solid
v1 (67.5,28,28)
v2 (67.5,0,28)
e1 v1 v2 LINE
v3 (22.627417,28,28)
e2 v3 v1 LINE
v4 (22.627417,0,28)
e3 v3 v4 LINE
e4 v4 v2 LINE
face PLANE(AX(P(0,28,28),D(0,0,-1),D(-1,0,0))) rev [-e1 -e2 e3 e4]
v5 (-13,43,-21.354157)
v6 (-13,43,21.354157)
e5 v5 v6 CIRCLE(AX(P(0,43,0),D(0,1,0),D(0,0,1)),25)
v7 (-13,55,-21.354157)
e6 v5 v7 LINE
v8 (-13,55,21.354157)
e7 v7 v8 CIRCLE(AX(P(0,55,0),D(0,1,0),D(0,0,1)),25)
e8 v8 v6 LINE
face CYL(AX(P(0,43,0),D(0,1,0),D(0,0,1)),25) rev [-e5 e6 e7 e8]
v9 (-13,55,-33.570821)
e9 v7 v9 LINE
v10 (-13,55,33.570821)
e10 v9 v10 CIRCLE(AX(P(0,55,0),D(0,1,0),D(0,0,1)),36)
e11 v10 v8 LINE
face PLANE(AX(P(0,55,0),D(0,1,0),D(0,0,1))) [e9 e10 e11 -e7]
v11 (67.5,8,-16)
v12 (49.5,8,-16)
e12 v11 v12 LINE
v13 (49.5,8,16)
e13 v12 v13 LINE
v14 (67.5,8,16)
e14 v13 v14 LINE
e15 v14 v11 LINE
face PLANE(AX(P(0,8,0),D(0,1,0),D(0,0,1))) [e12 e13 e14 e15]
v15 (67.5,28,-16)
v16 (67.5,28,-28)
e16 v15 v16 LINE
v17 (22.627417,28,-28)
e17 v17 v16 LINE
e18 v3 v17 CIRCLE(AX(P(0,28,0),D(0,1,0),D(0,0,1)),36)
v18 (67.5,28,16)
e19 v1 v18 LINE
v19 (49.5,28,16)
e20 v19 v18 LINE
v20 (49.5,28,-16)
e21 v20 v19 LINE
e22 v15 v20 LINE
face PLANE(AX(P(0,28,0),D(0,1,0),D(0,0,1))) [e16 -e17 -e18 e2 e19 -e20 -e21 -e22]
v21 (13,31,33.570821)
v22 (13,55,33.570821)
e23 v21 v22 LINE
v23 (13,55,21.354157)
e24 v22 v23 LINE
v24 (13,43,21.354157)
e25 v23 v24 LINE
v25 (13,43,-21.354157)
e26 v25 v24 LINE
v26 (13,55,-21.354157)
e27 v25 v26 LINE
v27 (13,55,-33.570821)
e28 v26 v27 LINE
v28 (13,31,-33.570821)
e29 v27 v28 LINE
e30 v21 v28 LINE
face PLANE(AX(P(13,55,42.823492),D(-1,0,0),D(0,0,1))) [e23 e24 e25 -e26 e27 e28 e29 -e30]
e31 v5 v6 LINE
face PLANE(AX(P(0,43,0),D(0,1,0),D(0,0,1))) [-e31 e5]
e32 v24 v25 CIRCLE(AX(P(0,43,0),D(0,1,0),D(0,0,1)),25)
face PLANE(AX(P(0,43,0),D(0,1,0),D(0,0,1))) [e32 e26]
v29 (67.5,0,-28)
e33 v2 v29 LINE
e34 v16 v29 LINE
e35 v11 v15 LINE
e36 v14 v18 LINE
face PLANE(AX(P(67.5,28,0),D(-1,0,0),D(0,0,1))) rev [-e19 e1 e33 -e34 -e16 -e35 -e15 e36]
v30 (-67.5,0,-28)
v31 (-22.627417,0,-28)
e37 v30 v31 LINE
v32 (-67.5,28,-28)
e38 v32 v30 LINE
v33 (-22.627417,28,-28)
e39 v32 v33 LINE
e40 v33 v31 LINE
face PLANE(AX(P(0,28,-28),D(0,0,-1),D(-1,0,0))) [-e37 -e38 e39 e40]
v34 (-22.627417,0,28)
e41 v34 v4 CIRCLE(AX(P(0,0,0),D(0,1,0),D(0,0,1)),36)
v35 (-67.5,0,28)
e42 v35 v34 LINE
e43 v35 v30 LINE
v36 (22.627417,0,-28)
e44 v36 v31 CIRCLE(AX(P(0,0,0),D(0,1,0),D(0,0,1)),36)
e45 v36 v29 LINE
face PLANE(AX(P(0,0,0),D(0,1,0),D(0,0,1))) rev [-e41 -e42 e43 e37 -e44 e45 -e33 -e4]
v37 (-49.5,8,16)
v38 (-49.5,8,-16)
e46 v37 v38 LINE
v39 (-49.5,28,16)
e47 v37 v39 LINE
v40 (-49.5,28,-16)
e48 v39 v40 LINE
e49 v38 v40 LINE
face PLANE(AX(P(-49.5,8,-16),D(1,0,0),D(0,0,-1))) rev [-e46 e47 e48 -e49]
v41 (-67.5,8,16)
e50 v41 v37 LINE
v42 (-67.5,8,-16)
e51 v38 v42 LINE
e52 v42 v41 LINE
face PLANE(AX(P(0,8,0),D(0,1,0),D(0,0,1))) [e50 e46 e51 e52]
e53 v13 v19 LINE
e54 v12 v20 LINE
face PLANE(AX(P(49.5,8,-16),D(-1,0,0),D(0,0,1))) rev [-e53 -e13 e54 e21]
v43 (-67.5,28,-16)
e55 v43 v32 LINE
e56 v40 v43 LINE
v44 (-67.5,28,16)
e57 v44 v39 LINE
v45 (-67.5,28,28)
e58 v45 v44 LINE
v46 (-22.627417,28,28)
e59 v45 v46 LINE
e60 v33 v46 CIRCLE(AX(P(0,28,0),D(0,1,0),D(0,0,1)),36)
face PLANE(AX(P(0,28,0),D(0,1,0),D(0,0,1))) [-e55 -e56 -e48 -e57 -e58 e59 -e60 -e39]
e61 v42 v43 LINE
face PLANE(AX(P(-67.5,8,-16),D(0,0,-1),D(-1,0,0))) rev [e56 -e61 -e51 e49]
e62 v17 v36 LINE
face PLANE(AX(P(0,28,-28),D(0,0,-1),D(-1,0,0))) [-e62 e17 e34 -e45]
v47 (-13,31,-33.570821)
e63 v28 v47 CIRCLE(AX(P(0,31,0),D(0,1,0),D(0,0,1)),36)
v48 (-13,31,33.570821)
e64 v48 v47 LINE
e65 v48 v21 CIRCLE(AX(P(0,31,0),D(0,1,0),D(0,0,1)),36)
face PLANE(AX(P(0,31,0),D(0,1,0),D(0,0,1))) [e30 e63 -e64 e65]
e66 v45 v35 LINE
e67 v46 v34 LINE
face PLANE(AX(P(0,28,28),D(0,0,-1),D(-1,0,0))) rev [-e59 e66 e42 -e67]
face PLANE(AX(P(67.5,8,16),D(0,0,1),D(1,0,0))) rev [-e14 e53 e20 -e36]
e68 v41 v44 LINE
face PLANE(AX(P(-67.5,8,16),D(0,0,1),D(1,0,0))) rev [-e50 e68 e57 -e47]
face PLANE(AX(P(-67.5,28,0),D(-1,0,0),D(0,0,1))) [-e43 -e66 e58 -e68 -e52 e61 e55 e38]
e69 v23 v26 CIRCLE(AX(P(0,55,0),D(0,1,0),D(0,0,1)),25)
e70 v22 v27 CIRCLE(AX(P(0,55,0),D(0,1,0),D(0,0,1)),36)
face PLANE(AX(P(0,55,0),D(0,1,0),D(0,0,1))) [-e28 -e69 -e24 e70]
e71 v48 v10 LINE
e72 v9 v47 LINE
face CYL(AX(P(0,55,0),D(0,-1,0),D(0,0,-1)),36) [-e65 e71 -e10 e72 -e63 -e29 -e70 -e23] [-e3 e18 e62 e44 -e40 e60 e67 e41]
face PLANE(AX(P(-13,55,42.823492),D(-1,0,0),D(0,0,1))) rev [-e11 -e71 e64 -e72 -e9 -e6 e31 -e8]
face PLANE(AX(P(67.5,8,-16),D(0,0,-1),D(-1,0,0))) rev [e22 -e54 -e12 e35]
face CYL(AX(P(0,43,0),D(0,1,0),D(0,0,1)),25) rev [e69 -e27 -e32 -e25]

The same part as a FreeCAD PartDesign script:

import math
import FreeCAD as App
import Part
import Sketcher

V = App.Vector
Q = App.Units.Quantity


def add_polygon(sketch, points):
    """Adds a closed chain of lines whose ends are joined by coincident constraints."""
    first, n = sketch.GeometryCount, len(points)
    for a, b in zip(points, points[1:] + points[:1]):
        sketch.addGeometry(Part.LineSegment(App.Vector(*a, 0), App.Vector(*b, 0)), False)
    for i in range(n):
        sketch.addConstraint(Sketcher.Constraint("Coincident", first + i, 2, first + (i + 1) % n, 1))

doc = App.newDocument("Part")
params = doc.addObject("Spreadsheet::Sheet", "Params")
for row, (alias, value) in enumerate([
    ("sketch1_radius", "36 mm"),
    ("sketch1_height", "56 mm"),
    ("pad1_length", "28 mm"),
    ("sketch2_radius", "36 mm"),
    ("sketch2_height", "56 mm"),
    ("pad2_length", "28 mm"),
    ("sketch3_diameter", "72 mm"),
    ("pad3_length", "55 mm"),
    ("sketch4_diameter", "50 mm"),
    ("pocket1_length", "12 mm"),
    ("sketch5_width", "26 mm"),
    ("sketch6_width", "18 mm"),
    ("sketch6_height", "32 mm"),
    ("pocket3_length", "20 mm"),
], start=1):
    params.set(f"A{row}", alias)
    params.set(f"B{row}", "=" + value)
    params.setAlias(f"B{row}", alias)

body = doc.addObject("PartDesign::Body", "Body")

# Sketch on XZ plane
sketch1 = body.newObject("Sketcher::SketchObject", "Sketch")
sketch1.AttachmentSupport = (doc.getObject("XZ_Plane"), [""])
sketch1.MapMode = "FlatFace"
sketch1.addGeometry([
    Part.ArcOfCircle(Part.Circle(V(0, 0, 0), V(0, 0, 1), 36), math.radians(0), math.radians(51)),  # 0
    Part.LineSegment(V(23, 28, 0), V(68, 28, 0)),  # 1
    Part.LineSegment(V(68, 28, 0), V(68, -28, 0)),  # 2
    Part.LineSegment(V(68, -28, 0), V(23, -28, 0)),  # 3
    Part.ArcOfCircle(Part.Circle(V(0, 0, 0), V(0, 0, 1), 36), math.radians(-51), math.radians(0)),  # 4
], False)
sketch1.addConstraint([
    Sketcher.Constraint("Coincident", 0, 2, 1, 1),
    Sketcher.Constraint("Coincident", 1, 2, 2, 1),
    Sketcher.Constraint("Coincident", 2, 2, 3, 1),
    Sketcher.Constraint("Coincident", 3, 2, 4, 1),
    Sketcher.Constraint("Tangent", 4, 2, 0, 1),
    Sketcher.Constraint("Horizontal", 1),
    Sketcher.Constraint("Vertical", 2),
    Sketcher.Constraint("Horizontal", 3),
    Sketcher.Constraint("Coincident", 0, 3, -1, 1),
    Sketcher.Constraint("Equal", 0, 4),
    Sketcher.Constraint("PointOnObject", 4, 2, -1),
    Sketcher.Constraint("Vertical", 0, 2, 3, 2),
    Sketcher.Constraint("Radius", 0, Q("36 mm")),
    Sketcher.Constraint("DistanceY", 2, 2, 2, 1, Q("56 mm")),
    Sketcher.Constraint("DistanceX", -1, 1, 1, 2, Q("67.5 mm")),
])
sketch1.setExpression("Constraints[12]", "Params.sketch1_radius")
sketch1.setExpression("Constraints[13]", "Params.sketch1_height")
pad1 = body.newObject("PartDesign::Pad", "Pad")
pad1.Profile = sketch1
pad1.setExpression("Length", "Params.pad1_length")
pad1.Reversed = True
body2 = doc.addObject("PartDesign::Body", "Body001")

# Sketch on XZ plane
sketch2 = body2.newObject("Sketcher::SketchObject", "Sketch001")
sketch2.AttachmentSupport = (doc.getObject("XZ_Plane001"), [""])
sketch2.MapMode = "FlatFace"
sketch2.addGeometry([
    Part.LineSegment(V(-68, -28, 0), V(-68, 28, 0)),
    Part.LineSegment(V(-68, 28, 0), V(-23, 28, 0)),
    Part.ArcOfCircle(Part.Circle(V(0, 0, 0), V(0, 0, 1), 36), math.radians(129), math.radians(231)),
    Part.LineSegment(V(-23, -28, 0), V(-68, -28, 0)),
], False)
sketch2.addConstraint([
    Sketcher.Constraint("Coincident", 0, 2, 1, 1),
    Sketcher.Constraint("Coincident", 1, 2, 2, 1),
    Sketcher.Constraint("Coincident", 2, 2, 3, 1),
    Sketcher.Constraint("Coincident", 3, 2, 0, 1),
    Sketcher.Constraint("Vertical", 0),
    Sketcher.Constraint("Horizontal", 1),
    Sketcher.Constraint("Horizontal", 3),
    Sketcher.Constraint("Coincident", 2, 3, -1, 1),
    Sketcher.Constraint("Vertical", 1, 2, 2, 2),
    Sketcher.Constraint("Radius", 2, Q("36 mm")),
    Sketcher.Constraint("DistanceY", 0, 1, 0, 2, Q("56 mm")),
    Sketcher.Constraint("DistanceX", 0, 2, -1, 1, Q("67.5 mm")),
])
sketch2.setExpression("Constraints[9]", "Params.sketch2_radius")
sketch2.setExpression("Constraints[10]", "Params.sketch2_height")
pad2 = body2.newObject("PartDesign::Pad", "Pad001")
pad2.Profile = sketch2
pad2.setExpression("Length", "Params.pad2_length")
pad2.Reversed = True
body.AllowCompound = True
doc.recompute()

boolean = body.newObject("PartDesign::Boolean", "Boolean")
boolean.Type = "Fuse"
boolean.addObjects([body2])

# Sketch on XZ plane
sketch3 = body.newObject("Sketcher::SketchObject", "Sketch002")
sketch3.AttachmentSupport = (doc.getObject("XZ_Plane"), [""])
sketch3.MapMode = "FlatFace"
sketch3.addGeometry(Part.Circle(V(0, 0, 0), V(0, 0, 1), 36), False)
sketch3.addConstraint([
    Sketcher.Constraint("Coincident", 0, 3, -1, 1),
    Sketcher.Constraint("Diameter", 0, Q("72 mm")),
])
sketch3.setExpression("Constraints[1]", "Params.sketch3_diameter")
pad3 = body.newObject("PartDesign::Pad", "Pad002")
pad3.Profile = sketch3
pad3.setExpression("Length", "Params.pad3_length")
pad3.Reversed = True

# Sketch on XZ plane
sketch4 = body.newObject("Sketcher::SketchObject", "Sketch003")
sketch4.AttachmentSupport = (doc.getObject("XZ_Plane"), [""])
sketch4.MapMode = "FlatFace"
sketch4.AttachmentOffset = App.Placement(V(0, 0, -55), App.Rotation())
sketch4.addGeometry(Part.Circle(V(0, 0, 0), V(0, 0, 1), 25), False)
sketch4.addConstraint([
    Sketcher.Constraint("Coincident", 0, 3, -1, 1),
    Sketcher.Constraint("Diameter", 0, Q("50 mm")),
])
sketch4.setExpression("Constraints[1]", "Params.sketch4_diameter")
pocket1 = body.newObject("PartDesign::Pocket", "Pocket")
pocket1.Profile = sketch4
pocket1.setExpression("Length", "Params.pocket1_length")
pocket1.Reversed = True

# Sketch on XZ plane
sketch5 = body.newObject("Sketcher::SketchObject", "Sketch004")
sketch5.AttachmentSupport = (doc.getObject("XZ_Plane"), [""])
sketch5.MapMode = "FlatFace"
sketch5.AttachmentOffset = App.Placement(V(0, 0, -31), App.Rotation())
add_polygon(sketch5, [(-13, -43), (-13, 43), (13, 43), (13, -43)])  # lines 0-3
sketch5.addConstraint([
    Sketcher.Constraint("Vertical", 0),
    Sketcher.Constraint("Horizontal", 1),
    Sketcher.Constraint("Vertical", 2),
    Sketcher.Constraint("Horizontal", 3),
    Sketcher.Constraint("Symmetric", 0, 2, 2, 2, -1, 1),
    Sketcher.Constraint("DistanceX", 1, 1, 1, 2, Q("26 mm")),
    Sketcher.Constraint("DistanceY", 0, 1, 0, 2, Q("85.646985 mm")),
])
sketch5.setExpression("Constraints[9]", "Params.sketch5_width")
pocket2 = body.newObject("PartDesign::Pocket", "Pocket001")
pocket2.Profile = sketch5
pocket2.Type = "ThroughAll"

# Sketch on XZ plane
sketch6 = body.newObject("Sketcher::SketchObject", "Sketch005")
sketch6.AttachmentSupport = (doc.getObject("XZ_Plane"), [""])
sketch6.MapMode = "FlatFace"
sketch6.AttachmentOffset = App.Placement(V(0, 0, -28), App.Rotation())
add_polygon(sketch6, [(-68, -16), (-68, 16), (-50, 16), (-50, -16)])  # lines 0-3
add_polygon(sketch6, [(50, -16), (50, 16), (68, 16), (68, -16)])  # lines 4-7
sketch6.addConstraint([
    Sketcher.Constraint("Vertical", 0),
    Sketcher.Constraint("Horizontal", 1),
    Sketcher.Constraint("Vertical", 2),
    Sketcher.Constraint("Horizontal", 3),
    Sketcher.Constraint("Vertical", 4),
    Sketcher.Constraint("Horizontal", 5),
    Sketcher.Constraint("Vertical", 6),
    Sketcher.Constraint("Horizontal", 7),
    Sketcher.Constraint("Symmetric", 2, 2, 4, 2, -1, 1),
    Sketcher.Constraint("Symmetric", 0, 2, 6, 2, -1, 1),
    Sketcher.Constraint("Horizontal", 1, 2, 4, 2),
    Sketcher.Constraint("DistanceX", 1, 1, 1, 2, Q("18 mm")),
    Sketcher.Constraint("DistanceY", 0, 1, 0, 2, Q("32 mm")),
    Sketcher.Constraint("DistanceX", 1, 2, 4, 2, Q("99 mm")),
])
sketch6.setExpression("Constraints[19]", "Params.sketch6_width")
sketch6.setExpression("Constraints[20]", "Params.sketch6_height")
pocket3 = body.newObject("PartDesign::Pocket", "Pocket002")
pocket3.Profile = sketch6
pocket3.setExpression("Length", "Params.pocket3_length")
pocket3.Reversed = True

doc.recompute()
